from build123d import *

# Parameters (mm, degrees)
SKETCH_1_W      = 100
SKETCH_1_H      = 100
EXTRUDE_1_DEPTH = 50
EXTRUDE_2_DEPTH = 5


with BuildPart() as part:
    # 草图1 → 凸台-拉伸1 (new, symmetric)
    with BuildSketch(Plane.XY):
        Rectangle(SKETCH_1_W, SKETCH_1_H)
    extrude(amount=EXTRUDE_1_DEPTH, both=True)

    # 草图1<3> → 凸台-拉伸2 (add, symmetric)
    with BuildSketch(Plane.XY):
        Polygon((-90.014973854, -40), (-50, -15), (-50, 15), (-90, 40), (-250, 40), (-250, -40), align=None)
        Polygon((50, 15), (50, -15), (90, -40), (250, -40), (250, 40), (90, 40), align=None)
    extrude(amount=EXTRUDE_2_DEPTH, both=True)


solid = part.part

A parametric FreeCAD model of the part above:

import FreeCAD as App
import Part
import Sketcher
Q = App.Units.Quantity

doc = App.newDocument("Part")
body = doc.addObject("PartDesign::Body", "Body")

sketch1 = body.newObject("Sketcher::SketchObject", "Sketch")
sketch1.AttachmentSupport = (doc.getObject("XY_Plane"), [""])
sketch1.MapMode = "FlatFace"
sketch1.addGeometry([
    Part.LineSegment(App.Vector(-50, 50, 0), App.Vector(-50, -50, 0)),
    Part.LineSegment(App.Vector(-50, -50, 0), App.Vector(50, -50, 0)),
    Part.LineSegment(App.Vector(50, -50, 0), App.Vector(50, 50, 0)),
    Part.LineSegment(App.Vector(50, 50, 0), App.Vector(-50, 50, 0)),
], False)
sketch1.addConstraint([
    Sketcher.Constraint("Coincident", 0, 2, 1, 1),
    Sketcher.Constraint("Coincident", 1, 2, 2, 1),
    Sketcher.Constraint("Coincident", 2, 2, 3, 1),
    Sketcher.Constraint("Coincident", 3, 2, 0, 1),
    Sketcher.Constraint("Vertical", 0),
    Sketcher.Constraint("Horizontal", 1),
    Sketcher.Constraint("Vertical", 2),
    Sketcher.Constraint("Horizontal", 3),
    Sketcher.Constraint("Symmetric", 0, 2, 2, 2, -1, 1),
    Sketcher.Constraint("Equal", 3, 0),
    Sketcher.Constraint("DistanceX", 1, 1, 1, 2, Q("100 mm")),
])
pad1 = body.newObject("PartDesign::Pad", "Pad")
pad1.Profile = sketch1
pad1.Length = 100
pad1.Midplane = True

sketch2 = body.newObject("Sketcher::SketchObject", "Sketch001")
sketch2.AttachmentSupport = (doc.getObject("XY_Plane"), [""])
sketch2.MapMode = "FlatFace"
sketch2.addGeometry([
    Part.LineSegment(App.Vector(-90, -40, 0), App.Vector(-50, -15, 0)),
    Part.LineSegment(App.Vector(-50, -15, 0), App.Vector(-50, 15, 0)),
    Part.LineSegment(App.Vector(-50, 15, 0), App.Vector(-90, 40, 0)),
    Part.LineSegment(App.Vector(-90, 40, 0), App.Vector(-250, 40, 0)),
    Part.LineSegment(App.Vector(-250, 40, 0), App.Vector(-250, -40, 0)),
    Part.LineSegment(App.Vector(-250, -40, 0), App.Vector(-90, -40, 0)),
    Part.LineSegment(App.Vector(50, 15, 0), App.Vector(50, -15, 0)),
    Part.LineSegment(App.Vector(50, -15, 0), App.Vector(90, -40, 0)),
    Part.LineSegment(App.Vector(90, -40, 0), App.Vector(250, -40, 0)),
    Part.LineSegment(App.Vector(250, -40, 0), App.Vector(250, 40, 0)),
    Part.LineSegment(App.Vector(250, 40, 0), App.Vector(90, 40, 0)),
    Part.LineSegment(App.Vector(90, 40, 0), App.Vector(50, 15, 0)),
], False)
sketch2.addConstraint([
    Sketcher.Constraint("Coincident", 0, 2, 1, 1),
    Sketcher.Constraint("Coincident", 1, 2, 2, 1),
    Sketcher.Constraint("Coincident", 2, 2, 3, 1),
    Sketcher.Constraint("Coincident", 3, 2, 4, 1),
    Sketcher.Constraint("Coincident", 4, 2, 5, 1),
    Sketcher.Constraint("Coincident", 5, 2, 0, 1),
    Sketcher.Constraint("Coincident", 6, 2, 7, 1),
    Sketcher.Constraint("Coincident", 7, 2, 8, 1),
    Sketcher.Constraint("Coincident", 8, 2, 9, 1),
    Sketcher.Constraint("Coincident", 9, 2, 10, 1),
    Sketcher.Constraint("Coincident", 10, 2, 11, 1),
    Sketcher.Constraint("Coincident", 11, 2, 6, 1),
    Sketcher.Constraint("Vertical", 1),
    Sketcher.Constraint("Horizontal", 3),
    Sketcher.Constraint("Vertical", 4),
    Sketcher.Constraint("Horizontal", 5),
    Sketcher.Constraint("Vertical", 6),
    Sketcher.Constraint("Horizontal", 8),
    Sketcher.Constraint("Vertical", 9),
    Sketcher.Constraint("Horizontal", 10),
    Sketcher.Constraint("Symmetric", 1, 2, 6, 2, -1, 1),
    Sketcher.Constraint("Symmetric", 2, 2, 7, 2, -1, 1),
    Sketcher.Constraint("Symmetric", 4, 2, 9, 2, -1, 1),
    Sketcher.Constraint("Symmetric", 2, 2, 10, 2, -2),
    Sketcher.Constraint("Horizontal", 0, 2, 6, 2),
    Sketcher.Constraint("Horizontal", 1, 2, 11, 2),
    Sketcher.Constraint("DistanceX", 3, 2, 3, 1, Q("160 mm")),
    Sketcher.Constraint("DistanceY", 1, 1, 1, 2, Q("30 mm")),
    Sketcher.Constraint("DistanceY", 4, 2, 4, 1, Q("80 mm")),
    Sketcher.Constraint("DistanceX", 0, 2, -1, 1, Q("50 mm")),
    Sketcher.Constraint("DistanceX", 2, 2, -1, 1, Q("90 mm")),
    Sketcher.Constraint("DistanceX", 5, 1, 5, 2, Q("159.985026 mm")),
])
pad2 = body.newObject("PartDesign::Pad", "Pad001")
pad2.Profile = sketch2
pad2.Length = 10
pad2.Midplane = True

doc.recompute()
